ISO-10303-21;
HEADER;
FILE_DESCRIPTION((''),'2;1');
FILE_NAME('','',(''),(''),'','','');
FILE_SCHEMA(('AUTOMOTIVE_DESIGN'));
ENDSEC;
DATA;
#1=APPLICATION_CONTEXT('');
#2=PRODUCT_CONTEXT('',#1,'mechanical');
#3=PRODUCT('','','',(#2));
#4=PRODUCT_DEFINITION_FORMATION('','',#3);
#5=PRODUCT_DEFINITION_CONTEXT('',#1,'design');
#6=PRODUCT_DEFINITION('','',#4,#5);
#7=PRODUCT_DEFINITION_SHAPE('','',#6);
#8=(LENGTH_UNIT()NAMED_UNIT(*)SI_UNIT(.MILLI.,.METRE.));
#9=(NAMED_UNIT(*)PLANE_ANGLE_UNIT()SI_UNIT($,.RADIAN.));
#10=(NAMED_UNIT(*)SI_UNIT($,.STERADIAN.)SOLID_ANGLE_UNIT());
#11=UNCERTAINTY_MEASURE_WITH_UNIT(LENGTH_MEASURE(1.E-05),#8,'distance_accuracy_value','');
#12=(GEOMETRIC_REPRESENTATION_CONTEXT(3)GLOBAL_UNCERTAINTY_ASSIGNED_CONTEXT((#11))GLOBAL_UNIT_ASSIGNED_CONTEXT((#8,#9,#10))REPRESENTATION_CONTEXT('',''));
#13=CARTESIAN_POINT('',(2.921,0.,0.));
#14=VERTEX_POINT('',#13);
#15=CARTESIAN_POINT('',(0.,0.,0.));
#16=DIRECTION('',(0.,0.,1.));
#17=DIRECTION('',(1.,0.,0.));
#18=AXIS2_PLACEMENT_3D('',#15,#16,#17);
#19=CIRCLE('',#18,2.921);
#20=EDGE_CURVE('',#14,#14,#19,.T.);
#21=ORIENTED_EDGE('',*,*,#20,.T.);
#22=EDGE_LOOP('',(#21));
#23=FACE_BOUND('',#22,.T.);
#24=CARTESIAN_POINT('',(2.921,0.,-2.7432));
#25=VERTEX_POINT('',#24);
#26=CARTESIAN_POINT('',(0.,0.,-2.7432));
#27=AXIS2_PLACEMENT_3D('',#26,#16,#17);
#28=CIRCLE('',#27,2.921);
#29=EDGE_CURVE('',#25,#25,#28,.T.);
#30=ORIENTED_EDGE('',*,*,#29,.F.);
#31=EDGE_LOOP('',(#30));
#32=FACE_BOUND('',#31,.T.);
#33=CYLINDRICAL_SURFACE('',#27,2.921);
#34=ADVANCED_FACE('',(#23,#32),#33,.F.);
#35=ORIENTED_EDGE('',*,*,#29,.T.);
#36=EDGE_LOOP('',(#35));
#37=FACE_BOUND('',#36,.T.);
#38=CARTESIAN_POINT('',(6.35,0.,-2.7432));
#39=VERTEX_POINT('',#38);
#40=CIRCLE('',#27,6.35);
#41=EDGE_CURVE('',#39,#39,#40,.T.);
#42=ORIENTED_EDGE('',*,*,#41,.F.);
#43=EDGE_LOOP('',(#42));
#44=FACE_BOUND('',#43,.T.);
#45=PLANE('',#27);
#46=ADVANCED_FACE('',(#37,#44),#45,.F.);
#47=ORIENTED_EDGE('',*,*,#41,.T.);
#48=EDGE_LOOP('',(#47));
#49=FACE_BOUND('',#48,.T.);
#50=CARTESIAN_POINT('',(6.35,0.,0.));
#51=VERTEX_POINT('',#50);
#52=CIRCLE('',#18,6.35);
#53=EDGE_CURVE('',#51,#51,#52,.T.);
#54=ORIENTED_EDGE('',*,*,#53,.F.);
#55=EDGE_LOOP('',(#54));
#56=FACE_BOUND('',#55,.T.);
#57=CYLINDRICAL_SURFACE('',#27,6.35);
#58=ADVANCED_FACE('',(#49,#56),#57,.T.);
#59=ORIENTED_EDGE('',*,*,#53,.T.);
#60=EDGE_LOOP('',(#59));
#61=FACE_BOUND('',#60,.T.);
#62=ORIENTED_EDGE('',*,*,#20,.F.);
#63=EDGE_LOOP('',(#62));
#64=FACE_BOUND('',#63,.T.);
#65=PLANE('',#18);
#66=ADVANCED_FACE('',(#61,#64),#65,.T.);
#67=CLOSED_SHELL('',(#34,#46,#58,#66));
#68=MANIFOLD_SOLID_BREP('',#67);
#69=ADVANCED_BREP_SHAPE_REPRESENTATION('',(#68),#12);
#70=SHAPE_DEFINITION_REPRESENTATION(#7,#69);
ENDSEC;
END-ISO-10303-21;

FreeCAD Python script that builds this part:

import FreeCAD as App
import Part
import Sketcher

V = App.Vector
Q = App.Units.Quantity

doc = App.newDocument("Part")
body = doc.addObject("PartDesign::Body", "Body")

# Sketch on XY plane
sketch1 = doc.addObject("Sketcher::SketchObject", "Sketch")
body.addObject(sketch1)
sketch1.AttachmentSupport = (doc.XY_Plane, [""])
sketch1.MapMode = "FlatFace"
sketch1.addGeometry([
    Part.Circle(V(0, 0, 0), V(0, 0, 1), 6.3),
    Part.Circle(V(0, 0, 0), V(0, 0, 1), 2.9),
], False)
sketch1.addConstraint([
    Sketcher.Constraint("Coincident", 0, 3, -1, 1),
    Sketcher.Constraint("Coincident", 1, 3, -1, 1),
    Sketcher.Constraint("Diameter", 0, Q("0.5 in")),
    Sketcher.Constraint("Diameter", 1, Q("0.23 in")),
])
pad1 = doc.addObject("PartDesign::Pad", "Pad")
body.addObject(pad1)
pad1.Profile = sketch1
pad1.Length = Q("0.108 in")
pad1.Reversed = True

doc.recompute()
